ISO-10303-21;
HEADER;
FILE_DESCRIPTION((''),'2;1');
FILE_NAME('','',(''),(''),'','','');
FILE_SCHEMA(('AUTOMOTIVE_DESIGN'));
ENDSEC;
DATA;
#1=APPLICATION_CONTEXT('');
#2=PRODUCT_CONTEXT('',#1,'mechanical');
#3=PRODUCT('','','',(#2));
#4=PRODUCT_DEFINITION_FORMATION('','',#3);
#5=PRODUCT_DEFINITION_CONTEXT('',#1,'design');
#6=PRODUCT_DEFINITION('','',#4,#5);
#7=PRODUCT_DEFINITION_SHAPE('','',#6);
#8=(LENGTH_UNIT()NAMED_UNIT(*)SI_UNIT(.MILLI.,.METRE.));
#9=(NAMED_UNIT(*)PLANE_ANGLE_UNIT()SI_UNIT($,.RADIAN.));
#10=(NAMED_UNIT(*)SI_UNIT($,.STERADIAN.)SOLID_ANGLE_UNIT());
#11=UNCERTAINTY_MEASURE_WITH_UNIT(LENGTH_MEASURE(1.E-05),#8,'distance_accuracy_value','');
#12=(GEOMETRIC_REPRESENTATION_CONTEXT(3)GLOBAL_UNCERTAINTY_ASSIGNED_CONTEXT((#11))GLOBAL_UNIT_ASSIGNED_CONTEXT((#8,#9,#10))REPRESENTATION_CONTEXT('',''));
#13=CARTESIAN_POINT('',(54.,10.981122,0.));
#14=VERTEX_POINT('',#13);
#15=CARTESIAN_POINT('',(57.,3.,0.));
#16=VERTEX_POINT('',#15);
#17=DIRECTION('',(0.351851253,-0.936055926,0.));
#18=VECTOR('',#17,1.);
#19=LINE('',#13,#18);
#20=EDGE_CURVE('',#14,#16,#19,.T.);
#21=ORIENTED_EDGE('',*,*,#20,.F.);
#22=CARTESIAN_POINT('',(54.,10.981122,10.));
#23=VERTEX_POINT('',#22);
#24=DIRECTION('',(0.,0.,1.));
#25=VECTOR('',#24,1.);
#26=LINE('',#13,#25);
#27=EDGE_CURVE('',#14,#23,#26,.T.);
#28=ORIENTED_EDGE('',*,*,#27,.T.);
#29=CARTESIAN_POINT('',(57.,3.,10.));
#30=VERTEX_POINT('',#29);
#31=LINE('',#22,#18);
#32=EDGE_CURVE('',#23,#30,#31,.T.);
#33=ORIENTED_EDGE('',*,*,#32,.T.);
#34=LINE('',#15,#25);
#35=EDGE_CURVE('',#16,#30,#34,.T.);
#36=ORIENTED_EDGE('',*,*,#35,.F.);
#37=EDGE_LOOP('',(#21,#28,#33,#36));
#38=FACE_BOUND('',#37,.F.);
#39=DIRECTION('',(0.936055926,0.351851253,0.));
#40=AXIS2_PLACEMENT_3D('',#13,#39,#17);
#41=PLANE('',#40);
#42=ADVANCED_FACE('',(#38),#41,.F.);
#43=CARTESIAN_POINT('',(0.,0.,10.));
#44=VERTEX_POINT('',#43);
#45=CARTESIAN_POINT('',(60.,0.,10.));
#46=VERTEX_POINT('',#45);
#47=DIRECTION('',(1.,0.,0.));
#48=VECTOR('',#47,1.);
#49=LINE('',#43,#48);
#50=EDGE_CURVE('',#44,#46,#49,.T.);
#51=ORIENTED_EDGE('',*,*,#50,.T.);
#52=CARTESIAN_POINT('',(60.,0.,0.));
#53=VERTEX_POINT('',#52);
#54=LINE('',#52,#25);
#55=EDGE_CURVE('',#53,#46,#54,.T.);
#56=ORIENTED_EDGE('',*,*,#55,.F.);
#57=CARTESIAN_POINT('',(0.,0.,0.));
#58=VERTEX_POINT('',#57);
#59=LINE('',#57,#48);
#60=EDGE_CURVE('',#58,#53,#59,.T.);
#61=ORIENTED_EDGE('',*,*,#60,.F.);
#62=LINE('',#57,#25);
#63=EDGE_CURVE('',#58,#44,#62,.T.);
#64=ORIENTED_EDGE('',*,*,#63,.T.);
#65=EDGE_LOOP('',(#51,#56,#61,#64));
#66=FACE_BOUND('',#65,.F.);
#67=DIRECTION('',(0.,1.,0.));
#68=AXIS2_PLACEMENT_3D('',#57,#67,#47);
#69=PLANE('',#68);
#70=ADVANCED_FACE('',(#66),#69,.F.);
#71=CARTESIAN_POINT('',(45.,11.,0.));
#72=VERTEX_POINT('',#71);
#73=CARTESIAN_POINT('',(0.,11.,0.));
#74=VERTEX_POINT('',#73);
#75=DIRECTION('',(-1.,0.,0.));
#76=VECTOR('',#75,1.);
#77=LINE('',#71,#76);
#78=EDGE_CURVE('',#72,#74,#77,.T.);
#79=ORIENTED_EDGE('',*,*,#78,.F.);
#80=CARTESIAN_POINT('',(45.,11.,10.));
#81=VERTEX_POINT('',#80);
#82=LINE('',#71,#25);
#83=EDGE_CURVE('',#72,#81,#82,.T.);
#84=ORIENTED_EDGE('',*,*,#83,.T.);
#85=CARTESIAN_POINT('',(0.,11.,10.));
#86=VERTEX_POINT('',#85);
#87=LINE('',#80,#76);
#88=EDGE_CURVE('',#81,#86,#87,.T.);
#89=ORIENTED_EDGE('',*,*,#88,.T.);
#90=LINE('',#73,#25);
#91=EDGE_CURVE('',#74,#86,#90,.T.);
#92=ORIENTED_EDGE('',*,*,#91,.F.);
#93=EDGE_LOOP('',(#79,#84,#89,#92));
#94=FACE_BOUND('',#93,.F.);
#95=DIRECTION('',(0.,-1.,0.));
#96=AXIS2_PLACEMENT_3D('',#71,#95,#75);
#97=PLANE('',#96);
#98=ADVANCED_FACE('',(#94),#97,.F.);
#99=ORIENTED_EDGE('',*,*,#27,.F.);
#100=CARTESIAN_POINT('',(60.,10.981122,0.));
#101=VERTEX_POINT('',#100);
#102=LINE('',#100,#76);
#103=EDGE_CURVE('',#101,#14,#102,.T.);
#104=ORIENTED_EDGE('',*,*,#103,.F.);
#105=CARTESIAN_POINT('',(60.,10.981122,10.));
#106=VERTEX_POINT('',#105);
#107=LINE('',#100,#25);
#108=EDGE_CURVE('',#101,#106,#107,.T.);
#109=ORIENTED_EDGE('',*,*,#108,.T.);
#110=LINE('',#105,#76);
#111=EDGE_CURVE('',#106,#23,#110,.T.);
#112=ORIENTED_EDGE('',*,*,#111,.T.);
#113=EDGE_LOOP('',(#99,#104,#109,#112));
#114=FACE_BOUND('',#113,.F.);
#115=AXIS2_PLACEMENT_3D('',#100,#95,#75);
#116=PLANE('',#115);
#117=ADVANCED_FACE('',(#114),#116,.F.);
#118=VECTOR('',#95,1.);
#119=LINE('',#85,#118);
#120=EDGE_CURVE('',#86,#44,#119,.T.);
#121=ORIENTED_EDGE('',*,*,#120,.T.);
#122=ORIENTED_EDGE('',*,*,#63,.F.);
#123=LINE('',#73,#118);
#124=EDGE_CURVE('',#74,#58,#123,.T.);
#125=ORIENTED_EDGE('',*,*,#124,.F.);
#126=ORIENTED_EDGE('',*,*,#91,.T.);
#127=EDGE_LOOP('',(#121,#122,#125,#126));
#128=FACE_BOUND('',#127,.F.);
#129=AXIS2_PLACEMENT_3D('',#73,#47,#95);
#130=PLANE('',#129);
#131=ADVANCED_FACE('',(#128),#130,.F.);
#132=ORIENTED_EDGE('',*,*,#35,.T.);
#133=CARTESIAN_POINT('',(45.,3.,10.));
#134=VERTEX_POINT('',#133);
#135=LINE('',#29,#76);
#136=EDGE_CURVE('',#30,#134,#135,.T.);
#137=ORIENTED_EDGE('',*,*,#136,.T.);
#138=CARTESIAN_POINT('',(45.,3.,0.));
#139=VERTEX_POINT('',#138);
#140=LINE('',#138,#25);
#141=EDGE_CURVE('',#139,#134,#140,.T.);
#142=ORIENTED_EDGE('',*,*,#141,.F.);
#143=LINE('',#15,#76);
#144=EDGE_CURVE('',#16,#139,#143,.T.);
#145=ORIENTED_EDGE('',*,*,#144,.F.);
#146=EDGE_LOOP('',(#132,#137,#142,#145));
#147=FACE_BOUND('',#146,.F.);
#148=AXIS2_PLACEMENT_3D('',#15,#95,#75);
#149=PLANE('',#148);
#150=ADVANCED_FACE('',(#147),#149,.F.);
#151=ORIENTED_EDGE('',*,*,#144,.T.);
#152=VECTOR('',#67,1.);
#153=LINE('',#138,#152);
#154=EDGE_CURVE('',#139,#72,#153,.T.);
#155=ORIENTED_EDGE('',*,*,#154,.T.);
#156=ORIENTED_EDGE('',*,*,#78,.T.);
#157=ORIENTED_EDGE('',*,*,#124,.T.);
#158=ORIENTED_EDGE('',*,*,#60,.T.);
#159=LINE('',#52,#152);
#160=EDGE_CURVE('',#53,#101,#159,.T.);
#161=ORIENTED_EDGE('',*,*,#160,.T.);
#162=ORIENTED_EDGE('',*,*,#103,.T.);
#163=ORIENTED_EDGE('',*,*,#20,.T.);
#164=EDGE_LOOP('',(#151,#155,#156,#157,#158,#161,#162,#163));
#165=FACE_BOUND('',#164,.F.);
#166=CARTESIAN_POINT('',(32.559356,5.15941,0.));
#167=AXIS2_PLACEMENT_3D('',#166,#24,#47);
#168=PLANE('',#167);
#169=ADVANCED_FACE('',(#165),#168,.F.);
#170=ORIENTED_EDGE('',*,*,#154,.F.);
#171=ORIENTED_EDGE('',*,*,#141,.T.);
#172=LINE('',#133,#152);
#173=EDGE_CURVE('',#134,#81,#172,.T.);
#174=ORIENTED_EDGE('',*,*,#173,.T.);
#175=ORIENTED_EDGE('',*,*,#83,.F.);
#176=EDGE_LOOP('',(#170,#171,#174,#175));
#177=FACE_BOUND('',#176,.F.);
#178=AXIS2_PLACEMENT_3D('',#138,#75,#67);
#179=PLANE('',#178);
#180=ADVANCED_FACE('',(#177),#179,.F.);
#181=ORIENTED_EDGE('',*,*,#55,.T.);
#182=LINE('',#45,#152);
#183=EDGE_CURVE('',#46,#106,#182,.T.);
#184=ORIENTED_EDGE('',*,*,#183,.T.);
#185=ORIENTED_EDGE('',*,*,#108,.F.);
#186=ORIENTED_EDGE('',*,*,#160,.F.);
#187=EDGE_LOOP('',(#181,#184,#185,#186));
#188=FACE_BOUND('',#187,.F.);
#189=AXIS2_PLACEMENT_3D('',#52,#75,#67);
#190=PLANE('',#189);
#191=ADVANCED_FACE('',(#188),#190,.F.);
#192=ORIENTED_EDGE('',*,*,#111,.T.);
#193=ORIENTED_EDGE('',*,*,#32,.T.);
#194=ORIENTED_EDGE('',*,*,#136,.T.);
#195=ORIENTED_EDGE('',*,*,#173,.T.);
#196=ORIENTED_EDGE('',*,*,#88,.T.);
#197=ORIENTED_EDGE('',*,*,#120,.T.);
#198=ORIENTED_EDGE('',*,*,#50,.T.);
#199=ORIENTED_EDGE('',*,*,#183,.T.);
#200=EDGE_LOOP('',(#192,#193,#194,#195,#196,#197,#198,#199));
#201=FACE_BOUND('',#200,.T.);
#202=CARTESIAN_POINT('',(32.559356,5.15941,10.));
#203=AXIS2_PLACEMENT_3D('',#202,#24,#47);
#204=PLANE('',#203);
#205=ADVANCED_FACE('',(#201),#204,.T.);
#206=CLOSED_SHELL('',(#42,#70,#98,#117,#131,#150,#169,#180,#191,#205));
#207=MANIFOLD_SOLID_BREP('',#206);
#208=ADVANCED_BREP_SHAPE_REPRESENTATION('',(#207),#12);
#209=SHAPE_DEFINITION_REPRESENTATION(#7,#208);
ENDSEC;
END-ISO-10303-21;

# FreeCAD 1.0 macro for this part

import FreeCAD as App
import Part
import Sketcher

V = App.Vector

doc = App.newDocument("Part")
body = doc.addObject("PartDesign::Body", "Body")

sketch1 = body.newObject("Sketcher::SketchObject", "Sketch")
sketch1.AttachmentSupport = (doc.getObject("XY_Plane"), [""])
sketch1.MapMode = "FlatFace"
sketch1.addGeometry([
    Part.LineSegment(V(0, 0, 0), V(60, 0, 0)),
    Part.LineSegment(V(60, 0, 0), V(60, 11, 0)),
    Part.LineSegment(V(60, 11, 0), V(54, 11, 0)),
    Part.LineSegment(V(54, 11, 0), V(57, 3, 0)),
    Part.LineSegment(V(57, 3, 0), V(45, 3, 0)),
    Part.LineSegment(V(45, 3, 0), V(45, 11, 0)),
    Part.LineSegment(V(45, 11, 0), V(0, 11, 0)),
    Part.LineSegment(V(0, 11, 0), V(0, 0, 0)),
], False)
sketch1.addConstraint([
    Sketcher.Constraint("Coincident", 0, 2, 1, 1),
    Sketcher.Constraint("Coincident", 1, 2, 2, 1),
    Sketcher.Constraint("Coincident", 2, 2, 3, 1),
    Sketcher.Constraint("Coincident", 3, 2, 4, 1),
    Sketcher.Constraint("Coincident", 4, 2, 5, 1),
    Sketcher.Constraint("Coincident", 5, 2, 6, 1),
    Sketcher.Constraint("Coincident", 6, 2, 7, 1),
    Sketcher.Constraint("Coincident", 7, 2, 0, 1),
    Sketcher.Constraint("Horizontal", 0),
    Sketcher.Constraint("Vertical", 1),
    Sketcher.Constraint("Horizontal", 2),
    Sketcher.Constraint("Horizontal", 4),
    Sketcher.Constraint("Vertical", 5),
    Sketcher.Constraint("Horizontal", 6),
    Sketcher.Constraint("Vertical", 7),
    Sketcher.Constraint("Coincident", 7, 2, -1, 1),
    Sketcher.Constraint("DistanceX", 0, 1, 0, 2, 60.0),
    Sketcher.Constraint("DistanceX", 2, 2, 2, 1, 6.0),
    Sketcher.Constraint("DistanceX", 4, 2, 4, 1, 12.0),
    Sketcher.Constraint("DistanceX", 6, 2, 6, 1, 45.0),
    Sketcher.Constraint("DistanceY", 5, 1, 5, 2, 8.0),
    Sketcher.Constraint("DistanceY", 7, 2, 7, 1, 11.0),
    Sketcher.Constraint("DistanceY", 1, 1, 1, 2, 10.981122),
])
pad1 = body.newObject("PartDesign::Pad", "Pad")
pad1.Profile = sketch1
pad1.Length = 10

doc.recompute()
